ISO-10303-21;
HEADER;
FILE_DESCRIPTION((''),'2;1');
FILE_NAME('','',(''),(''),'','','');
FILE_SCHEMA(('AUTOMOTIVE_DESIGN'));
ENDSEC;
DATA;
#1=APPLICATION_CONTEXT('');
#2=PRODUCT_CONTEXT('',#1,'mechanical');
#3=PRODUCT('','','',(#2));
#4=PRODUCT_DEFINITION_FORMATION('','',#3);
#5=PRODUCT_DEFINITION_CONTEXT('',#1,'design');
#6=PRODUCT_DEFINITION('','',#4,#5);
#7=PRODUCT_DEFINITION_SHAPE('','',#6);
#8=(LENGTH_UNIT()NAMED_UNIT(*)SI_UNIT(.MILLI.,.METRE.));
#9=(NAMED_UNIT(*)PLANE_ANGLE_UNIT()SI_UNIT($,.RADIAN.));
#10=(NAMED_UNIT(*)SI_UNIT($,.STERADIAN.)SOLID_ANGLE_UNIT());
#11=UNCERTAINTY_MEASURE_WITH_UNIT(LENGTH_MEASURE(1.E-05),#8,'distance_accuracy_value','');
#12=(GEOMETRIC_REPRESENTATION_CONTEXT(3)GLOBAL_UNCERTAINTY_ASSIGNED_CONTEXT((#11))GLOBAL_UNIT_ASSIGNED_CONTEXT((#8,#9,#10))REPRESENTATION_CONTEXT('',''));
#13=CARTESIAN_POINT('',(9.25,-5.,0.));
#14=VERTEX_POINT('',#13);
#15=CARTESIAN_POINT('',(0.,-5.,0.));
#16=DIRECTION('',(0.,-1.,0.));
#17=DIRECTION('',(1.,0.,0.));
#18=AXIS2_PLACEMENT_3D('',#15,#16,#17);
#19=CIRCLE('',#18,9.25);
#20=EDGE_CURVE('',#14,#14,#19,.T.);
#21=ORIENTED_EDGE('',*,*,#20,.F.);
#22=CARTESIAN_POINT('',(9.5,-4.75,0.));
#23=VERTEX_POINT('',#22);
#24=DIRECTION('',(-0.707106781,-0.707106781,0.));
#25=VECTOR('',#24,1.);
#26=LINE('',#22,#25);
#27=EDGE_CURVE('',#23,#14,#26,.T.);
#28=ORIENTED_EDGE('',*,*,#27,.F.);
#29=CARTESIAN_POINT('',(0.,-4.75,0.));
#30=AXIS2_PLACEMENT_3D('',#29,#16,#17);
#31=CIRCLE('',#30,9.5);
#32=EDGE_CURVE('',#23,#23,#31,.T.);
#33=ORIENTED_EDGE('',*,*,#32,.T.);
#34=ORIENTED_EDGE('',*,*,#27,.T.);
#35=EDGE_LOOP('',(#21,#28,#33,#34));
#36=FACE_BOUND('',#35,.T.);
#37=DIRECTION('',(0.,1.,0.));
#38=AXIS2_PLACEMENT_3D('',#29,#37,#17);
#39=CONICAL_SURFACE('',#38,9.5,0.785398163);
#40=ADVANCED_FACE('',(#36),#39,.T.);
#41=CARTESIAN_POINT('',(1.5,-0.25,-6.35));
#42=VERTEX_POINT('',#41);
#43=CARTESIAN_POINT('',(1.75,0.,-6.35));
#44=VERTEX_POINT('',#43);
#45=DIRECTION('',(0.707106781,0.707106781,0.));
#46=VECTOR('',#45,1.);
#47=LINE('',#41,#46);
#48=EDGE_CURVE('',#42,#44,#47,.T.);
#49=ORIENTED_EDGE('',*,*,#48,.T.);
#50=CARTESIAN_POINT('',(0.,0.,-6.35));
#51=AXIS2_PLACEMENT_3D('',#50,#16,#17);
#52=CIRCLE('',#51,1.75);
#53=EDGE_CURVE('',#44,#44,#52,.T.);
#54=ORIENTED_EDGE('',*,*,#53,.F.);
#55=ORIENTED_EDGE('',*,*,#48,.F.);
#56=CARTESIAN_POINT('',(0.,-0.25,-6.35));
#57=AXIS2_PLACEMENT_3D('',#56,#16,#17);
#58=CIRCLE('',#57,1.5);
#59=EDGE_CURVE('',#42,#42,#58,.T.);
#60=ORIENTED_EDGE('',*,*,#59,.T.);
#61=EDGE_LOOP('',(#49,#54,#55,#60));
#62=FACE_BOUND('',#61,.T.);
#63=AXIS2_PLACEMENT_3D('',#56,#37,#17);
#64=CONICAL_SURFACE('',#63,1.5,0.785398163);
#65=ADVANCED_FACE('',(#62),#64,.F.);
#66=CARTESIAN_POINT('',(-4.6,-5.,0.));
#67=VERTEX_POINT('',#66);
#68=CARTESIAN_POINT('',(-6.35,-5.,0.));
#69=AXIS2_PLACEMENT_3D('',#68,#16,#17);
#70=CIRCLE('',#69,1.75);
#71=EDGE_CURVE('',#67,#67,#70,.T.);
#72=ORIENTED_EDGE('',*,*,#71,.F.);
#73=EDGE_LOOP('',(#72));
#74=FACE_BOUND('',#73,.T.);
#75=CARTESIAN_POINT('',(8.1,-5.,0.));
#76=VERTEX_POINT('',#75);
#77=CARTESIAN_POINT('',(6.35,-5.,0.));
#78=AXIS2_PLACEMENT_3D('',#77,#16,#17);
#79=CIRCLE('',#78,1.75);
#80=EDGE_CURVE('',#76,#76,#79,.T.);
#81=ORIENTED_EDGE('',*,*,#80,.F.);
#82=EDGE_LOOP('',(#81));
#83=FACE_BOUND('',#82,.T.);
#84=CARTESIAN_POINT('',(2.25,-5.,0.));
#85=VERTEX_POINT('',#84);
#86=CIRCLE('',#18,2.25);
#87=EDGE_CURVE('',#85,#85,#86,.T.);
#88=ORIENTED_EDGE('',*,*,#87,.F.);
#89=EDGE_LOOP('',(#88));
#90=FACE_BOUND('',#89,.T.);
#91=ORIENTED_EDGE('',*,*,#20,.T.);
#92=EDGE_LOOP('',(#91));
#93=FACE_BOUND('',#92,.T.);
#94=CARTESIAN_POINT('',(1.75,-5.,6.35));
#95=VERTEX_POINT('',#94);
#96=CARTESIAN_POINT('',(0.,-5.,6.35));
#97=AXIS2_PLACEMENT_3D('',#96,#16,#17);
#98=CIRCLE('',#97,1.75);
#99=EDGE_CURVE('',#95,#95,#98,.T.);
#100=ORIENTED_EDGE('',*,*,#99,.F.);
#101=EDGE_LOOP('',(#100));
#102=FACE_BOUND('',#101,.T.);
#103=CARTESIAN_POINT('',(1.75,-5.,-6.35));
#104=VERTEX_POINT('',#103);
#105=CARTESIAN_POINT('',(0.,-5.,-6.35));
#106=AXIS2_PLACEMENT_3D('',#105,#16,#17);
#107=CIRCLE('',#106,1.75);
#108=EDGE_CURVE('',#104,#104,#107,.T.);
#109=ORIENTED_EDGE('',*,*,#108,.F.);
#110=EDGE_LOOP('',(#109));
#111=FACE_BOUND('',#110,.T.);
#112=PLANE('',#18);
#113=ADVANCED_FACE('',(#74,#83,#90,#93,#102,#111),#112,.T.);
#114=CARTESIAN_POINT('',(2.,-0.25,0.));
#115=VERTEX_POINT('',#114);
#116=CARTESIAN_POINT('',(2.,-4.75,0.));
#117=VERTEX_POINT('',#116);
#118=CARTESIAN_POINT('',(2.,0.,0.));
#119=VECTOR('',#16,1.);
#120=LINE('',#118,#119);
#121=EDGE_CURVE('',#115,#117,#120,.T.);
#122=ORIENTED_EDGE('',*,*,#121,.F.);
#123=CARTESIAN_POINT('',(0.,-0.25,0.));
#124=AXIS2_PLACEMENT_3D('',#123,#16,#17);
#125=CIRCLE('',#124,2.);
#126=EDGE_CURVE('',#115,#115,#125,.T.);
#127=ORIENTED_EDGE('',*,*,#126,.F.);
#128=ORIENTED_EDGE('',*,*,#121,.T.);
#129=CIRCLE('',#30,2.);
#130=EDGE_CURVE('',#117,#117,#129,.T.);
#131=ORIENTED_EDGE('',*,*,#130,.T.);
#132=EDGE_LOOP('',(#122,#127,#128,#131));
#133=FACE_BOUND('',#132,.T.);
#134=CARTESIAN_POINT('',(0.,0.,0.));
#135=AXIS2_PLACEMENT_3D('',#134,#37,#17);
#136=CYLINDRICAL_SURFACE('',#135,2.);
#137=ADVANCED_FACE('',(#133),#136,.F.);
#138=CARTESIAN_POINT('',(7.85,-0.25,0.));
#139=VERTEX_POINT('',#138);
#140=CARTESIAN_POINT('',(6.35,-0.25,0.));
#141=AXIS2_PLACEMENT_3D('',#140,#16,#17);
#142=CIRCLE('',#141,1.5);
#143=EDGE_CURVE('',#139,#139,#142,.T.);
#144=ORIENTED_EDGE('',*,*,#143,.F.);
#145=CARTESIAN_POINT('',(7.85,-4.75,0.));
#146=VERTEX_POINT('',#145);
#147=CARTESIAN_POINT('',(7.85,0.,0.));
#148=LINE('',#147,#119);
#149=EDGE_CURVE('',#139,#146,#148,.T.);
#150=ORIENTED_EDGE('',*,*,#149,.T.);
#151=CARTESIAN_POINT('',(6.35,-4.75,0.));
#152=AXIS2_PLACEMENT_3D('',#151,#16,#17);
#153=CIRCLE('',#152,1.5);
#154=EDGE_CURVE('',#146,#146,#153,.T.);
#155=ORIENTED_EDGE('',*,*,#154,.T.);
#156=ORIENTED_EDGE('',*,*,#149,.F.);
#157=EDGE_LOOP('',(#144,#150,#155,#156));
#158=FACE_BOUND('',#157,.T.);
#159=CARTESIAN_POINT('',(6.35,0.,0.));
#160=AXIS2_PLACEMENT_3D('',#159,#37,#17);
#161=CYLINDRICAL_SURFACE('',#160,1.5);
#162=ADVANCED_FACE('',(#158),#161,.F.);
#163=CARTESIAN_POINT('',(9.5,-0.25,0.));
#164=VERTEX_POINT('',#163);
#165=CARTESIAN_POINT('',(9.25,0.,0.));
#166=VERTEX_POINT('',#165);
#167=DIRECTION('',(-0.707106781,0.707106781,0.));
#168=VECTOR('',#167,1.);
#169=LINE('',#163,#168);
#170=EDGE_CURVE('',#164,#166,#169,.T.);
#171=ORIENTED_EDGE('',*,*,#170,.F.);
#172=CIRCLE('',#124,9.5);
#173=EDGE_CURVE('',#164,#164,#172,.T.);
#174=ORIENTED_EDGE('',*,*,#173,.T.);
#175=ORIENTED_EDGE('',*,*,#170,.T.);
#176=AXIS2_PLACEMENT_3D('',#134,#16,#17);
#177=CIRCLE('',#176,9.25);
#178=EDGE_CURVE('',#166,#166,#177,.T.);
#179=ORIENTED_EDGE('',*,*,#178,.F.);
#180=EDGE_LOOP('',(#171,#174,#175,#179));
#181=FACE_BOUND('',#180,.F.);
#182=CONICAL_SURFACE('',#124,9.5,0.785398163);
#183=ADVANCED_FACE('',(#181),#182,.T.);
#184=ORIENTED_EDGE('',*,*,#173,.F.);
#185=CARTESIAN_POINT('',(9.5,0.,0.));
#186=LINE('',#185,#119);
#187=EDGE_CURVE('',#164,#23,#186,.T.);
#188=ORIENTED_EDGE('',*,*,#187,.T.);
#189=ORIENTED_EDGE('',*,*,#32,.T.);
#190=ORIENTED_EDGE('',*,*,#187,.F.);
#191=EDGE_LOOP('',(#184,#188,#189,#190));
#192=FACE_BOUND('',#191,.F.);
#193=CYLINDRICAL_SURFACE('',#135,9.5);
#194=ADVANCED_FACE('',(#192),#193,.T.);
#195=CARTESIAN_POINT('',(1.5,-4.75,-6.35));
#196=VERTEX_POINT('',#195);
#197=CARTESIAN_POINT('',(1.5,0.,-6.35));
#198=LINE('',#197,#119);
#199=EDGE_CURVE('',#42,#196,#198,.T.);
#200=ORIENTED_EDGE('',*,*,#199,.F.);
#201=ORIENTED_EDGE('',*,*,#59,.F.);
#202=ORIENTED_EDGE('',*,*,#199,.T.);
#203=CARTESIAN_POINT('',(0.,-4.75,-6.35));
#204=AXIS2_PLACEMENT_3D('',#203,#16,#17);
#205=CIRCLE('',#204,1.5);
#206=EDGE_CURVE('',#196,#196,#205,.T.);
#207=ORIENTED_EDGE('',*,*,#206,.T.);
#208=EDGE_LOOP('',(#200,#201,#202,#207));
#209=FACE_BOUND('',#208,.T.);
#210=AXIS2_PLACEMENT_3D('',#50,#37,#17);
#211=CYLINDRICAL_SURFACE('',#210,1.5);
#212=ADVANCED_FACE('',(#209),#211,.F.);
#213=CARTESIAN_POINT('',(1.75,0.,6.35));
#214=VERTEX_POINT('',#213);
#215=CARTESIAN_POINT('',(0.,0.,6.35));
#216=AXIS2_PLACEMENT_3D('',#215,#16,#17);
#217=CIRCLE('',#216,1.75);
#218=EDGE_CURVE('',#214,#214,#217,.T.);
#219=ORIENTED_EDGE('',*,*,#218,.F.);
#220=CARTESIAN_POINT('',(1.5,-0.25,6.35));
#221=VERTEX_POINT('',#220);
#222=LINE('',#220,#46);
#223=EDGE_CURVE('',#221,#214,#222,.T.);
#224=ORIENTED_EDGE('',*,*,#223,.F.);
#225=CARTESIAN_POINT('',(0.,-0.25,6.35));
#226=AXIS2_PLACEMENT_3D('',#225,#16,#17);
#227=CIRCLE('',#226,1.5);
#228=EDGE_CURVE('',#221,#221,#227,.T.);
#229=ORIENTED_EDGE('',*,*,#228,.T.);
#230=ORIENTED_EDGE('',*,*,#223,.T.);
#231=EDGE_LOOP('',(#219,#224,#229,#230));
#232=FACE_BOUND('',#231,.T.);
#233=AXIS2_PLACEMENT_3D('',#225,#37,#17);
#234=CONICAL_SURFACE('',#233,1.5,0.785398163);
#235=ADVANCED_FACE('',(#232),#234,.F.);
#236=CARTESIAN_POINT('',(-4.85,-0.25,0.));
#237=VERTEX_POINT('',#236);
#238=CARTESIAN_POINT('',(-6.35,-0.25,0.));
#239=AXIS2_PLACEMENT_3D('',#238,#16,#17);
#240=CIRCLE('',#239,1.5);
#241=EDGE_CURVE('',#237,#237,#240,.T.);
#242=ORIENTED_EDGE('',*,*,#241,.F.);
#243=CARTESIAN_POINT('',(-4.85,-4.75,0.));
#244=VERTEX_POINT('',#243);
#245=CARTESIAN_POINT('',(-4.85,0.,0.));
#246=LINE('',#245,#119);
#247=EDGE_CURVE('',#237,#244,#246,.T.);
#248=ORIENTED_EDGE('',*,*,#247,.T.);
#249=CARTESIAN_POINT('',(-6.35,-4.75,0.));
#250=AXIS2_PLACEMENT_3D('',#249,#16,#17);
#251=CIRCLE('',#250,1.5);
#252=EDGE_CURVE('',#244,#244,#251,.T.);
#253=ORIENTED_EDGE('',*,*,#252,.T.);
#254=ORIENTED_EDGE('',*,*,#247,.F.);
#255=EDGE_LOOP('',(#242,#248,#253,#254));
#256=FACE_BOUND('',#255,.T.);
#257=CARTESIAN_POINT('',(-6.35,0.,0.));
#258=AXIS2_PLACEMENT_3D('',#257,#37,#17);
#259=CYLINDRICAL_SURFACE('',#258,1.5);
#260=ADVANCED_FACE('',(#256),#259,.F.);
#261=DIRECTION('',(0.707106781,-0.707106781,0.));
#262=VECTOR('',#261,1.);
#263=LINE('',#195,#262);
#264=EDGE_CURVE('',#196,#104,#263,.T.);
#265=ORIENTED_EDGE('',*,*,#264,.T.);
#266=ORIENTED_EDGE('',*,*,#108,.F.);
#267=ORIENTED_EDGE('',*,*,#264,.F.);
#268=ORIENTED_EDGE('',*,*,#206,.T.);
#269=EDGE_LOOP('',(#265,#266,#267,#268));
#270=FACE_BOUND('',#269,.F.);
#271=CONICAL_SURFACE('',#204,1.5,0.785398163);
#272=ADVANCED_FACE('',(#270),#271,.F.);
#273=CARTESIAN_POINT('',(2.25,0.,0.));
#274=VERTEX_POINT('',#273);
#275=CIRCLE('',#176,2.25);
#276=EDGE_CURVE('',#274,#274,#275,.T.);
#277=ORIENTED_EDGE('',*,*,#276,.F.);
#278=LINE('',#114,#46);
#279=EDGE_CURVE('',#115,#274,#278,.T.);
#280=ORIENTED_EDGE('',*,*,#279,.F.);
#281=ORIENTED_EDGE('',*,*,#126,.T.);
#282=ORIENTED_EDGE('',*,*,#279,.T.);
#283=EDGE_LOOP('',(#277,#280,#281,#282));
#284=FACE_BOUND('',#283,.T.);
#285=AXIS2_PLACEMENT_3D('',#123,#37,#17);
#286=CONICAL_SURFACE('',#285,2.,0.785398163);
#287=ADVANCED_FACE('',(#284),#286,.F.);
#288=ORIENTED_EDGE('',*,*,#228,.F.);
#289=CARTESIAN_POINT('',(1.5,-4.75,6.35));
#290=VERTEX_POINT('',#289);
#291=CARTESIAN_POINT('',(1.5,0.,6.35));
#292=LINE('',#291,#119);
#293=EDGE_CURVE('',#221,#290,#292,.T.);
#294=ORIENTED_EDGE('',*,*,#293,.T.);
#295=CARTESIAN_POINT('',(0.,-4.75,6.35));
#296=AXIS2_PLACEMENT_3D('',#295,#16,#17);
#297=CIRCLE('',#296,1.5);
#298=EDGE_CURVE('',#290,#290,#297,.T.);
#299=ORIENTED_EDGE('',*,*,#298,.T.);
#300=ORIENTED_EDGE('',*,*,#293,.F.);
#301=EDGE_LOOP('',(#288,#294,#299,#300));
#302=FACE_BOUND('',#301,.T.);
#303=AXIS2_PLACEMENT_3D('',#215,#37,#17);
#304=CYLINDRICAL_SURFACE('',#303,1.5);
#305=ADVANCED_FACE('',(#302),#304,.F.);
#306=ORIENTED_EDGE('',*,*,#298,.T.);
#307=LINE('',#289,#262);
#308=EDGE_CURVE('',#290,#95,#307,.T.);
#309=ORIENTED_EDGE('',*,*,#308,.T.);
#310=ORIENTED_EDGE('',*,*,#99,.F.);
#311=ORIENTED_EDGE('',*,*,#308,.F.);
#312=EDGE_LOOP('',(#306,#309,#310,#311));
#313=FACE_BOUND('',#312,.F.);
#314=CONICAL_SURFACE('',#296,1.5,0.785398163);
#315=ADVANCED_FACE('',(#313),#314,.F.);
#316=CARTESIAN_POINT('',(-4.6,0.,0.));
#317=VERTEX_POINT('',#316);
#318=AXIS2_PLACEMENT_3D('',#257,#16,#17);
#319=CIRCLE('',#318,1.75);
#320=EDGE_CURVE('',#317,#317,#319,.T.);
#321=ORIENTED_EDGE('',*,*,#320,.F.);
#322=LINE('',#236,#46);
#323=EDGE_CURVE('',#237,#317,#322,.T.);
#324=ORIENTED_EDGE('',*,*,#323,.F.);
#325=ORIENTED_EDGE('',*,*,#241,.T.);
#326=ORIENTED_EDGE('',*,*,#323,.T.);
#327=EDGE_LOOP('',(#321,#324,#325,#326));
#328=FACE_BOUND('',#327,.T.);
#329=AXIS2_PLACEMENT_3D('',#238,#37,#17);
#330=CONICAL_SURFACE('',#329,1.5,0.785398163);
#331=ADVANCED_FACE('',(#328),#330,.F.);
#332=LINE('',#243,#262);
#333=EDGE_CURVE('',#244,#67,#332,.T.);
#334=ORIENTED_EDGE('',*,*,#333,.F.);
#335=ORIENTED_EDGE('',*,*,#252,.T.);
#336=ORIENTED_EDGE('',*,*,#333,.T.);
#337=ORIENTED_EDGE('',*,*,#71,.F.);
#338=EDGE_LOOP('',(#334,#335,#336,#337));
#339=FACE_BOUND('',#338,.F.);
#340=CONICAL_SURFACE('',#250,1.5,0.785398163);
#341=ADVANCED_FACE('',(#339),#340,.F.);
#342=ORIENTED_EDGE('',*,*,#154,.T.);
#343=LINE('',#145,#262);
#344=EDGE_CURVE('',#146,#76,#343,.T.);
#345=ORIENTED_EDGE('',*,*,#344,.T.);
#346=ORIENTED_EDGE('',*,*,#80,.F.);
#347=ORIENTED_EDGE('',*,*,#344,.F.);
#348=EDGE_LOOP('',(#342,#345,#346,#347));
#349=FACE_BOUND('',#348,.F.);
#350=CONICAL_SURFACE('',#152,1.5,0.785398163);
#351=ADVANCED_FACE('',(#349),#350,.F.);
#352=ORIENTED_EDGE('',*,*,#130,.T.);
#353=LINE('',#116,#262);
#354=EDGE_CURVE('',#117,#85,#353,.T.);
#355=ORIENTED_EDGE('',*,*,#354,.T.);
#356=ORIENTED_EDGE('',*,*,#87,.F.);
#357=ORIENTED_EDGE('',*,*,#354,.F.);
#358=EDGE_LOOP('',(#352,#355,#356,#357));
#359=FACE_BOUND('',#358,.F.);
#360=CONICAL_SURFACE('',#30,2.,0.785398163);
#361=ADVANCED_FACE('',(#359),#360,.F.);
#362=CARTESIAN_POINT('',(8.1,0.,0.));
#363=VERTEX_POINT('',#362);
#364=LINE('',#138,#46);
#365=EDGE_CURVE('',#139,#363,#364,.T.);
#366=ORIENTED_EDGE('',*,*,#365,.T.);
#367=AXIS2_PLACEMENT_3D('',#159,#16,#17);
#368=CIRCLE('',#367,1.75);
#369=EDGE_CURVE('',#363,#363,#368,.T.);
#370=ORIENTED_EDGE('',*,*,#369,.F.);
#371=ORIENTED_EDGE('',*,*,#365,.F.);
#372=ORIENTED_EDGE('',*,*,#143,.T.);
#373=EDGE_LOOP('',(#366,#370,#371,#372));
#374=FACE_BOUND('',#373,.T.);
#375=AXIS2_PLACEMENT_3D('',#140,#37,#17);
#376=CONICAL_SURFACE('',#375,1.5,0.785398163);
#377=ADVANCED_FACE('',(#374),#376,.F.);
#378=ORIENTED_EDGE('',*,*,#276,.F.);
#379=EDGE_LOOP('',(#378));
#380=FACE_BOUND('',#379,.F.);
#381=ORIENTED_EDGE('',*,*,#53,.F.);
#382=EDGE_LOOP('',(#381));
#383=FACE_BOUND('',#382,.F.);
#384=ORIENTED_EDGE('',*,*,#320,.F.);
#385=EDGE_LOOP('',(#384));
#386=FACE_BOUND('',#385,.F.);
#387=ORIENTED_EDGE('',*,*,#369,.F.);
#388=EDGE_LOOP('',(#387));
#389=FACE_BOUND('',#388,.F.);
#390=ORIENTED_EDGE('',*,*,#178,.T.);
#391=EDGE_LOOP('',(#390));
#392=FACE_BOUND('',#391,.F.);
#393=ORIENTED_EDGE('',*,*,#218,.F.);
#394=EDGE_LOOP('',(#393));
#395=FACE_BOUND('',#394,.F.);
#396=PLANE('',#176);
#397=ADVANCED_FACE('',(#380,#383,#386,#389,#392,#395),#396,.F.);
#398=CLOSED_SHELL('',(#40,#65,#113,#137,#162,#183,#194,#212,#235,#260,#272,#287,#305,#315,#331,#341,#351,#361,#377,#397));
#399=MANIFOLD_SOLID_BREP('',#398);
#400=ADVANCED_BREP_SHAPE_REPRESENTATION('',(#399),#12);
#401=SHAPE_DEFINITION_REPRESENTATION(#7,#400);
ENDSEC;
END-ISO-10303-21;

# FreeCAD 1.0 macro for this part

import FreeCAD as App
import Part
import Sketcher


def edges_at(feature, points):
    """Names of the edges that pass closest to the given points."""
    edges = feature.Shape.Edges
    near = lambda p: min(range(len(edges)), key=lambda i: edges[i].distToShape(Part.Vertex(*p))[0])
    return sorted({f"Edge{near(p) + 1}" for p in points})

doc = App.newDocument("Part")
body = doc.addObject("PartDesign::Body", "Body")

# Sketch on XZ plane
sketch1 = body.newObject("Sketcher::SketchObject", "Sketch")
sketch1.AttachmentSupport = (doc.getObject("XZ_Plane"), [""])
sketch1.MapMode = "FlatFace"
sketch1.addGeometry([
    Part.Circle(App.Vector(0, 0, 0), App.Vector(0, 0, 1), 9.5),  # 0
    Part.Circle(App.Vector(0, -6.3, 0), App.Vector(0, 0, 1), 1.5),  # 1
    Part.Circle(App.Vector(-6.3, 0, 0), App.Vector(0, 0, 1), 1.5),  # 2
    Part.Circle(App.Vector(0, 0, 0), App.Vector(0, 0, 1), 2),  # 3
    Part.Circle(App.Vector(6.3, 0, 0), App.Vector(0, 0, 1), 1.5),  # 4
    Part.Circle(App.Vector(0, 6.3, 0), App.Vector(0, 0, 1), 1.5),  # 5
], False)
sketch1.addConstraint([
    Sketcher.Constraint("Coincident", 0, 3, -1, 1),
    Sketcher.Constraint("Coincident", 3, 3, -1, 1),
    Sketcher.Constraint("Equal", 1, 2),
    Sketcher.Constraint("Equal", 2, 4),
    Sketcher.Constraint("Equal", 4, 5),
    Sketcher.Constraint("Symmetric", 2, 3, 4, 3, -1, 1),
    Sketcher.Constraint("Symmetric", 1, 3, 5, 3, -1, 1),
    Sketcher.Constraint("PointOnObject", 1, 3, -2),
    Sketcher.Constraint("PointOnObject", 2, 3, -1),
    Sketcher.Constraint("Diameter", 0, 19.0),
    Sketcher.Constraint("Diameter", 1, 3.0),
    Sketcher.Constraint("Diameter", 3, 4.0),
    Sketcher.Constraint("DistanceX", 2, 3, 4, 3, 12.7),
    Sketcher.Constraint("DistanceY", 1, 3, 5, 3, 12.7),
])
pad1 = body.newObject("PartDesign::Pad", "Pad")
pad1.Profile = sketch1
pad1.Length = 5
doc.recompute()

chamfer = body.newObject("PartDesign::Chamfer", "Chamfer")
chamfer.Base = (pad1, edges_at(pad1, [
    (-9.5, -5, 0),
    (-9.5, 0, 0),
    (-7.85, -5, 0),
    (-1.5, -5, 6.35),
    (-2, -5, 0),
    (-1.5, -5, -6.35),
    (4.85, -5, 0),
    (4.85, 0, 0),
    (-2, 0, 0),
    (-1.5, 0, 6.35),
    (-7.85, 0, 0),
    (-1.5, 0, -6.35),
]))
chamfer.Size = 0.25

doc.recompute()
